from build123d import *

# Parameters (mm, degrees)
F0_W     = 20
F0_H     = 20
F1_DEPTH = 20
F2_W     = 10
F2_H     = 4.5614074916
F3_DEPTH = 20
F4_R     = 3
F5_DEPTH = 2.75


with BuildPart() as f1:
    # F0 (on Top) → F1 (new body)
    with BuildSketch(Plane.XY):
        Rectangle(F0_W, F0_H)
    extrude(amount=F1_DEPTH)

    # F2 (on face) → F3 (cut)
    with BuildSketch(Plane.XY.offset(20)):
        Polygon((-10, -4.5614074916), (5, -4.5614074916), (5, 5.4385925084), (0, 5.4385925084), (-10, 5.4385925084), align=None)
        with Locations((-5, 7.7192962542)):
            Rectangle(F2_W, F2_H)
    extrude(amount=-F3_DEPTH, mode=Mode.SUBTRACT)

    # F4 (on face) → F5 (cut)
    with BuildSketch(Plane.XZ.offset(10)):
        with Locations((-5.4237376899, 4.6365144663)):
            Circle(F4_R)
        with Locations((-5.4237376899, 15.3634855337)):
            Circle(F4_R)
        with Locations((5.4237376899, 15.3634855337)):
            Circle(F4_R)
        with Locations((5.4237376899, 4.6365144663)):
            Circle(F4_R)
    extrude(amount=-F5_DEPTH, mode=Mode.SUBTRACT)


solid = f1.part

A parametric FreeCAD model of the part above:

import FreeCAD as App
import Part
import Sketcher

V = App.Vector

doc = App.newDocument("Part")
body = doc.addObject("PartDesign::Body", "Body")

# Sketch on XY plane
sketch1 = body.newObject("Sketcher::SketchObject", "Sketch")
sketch1.AttachmentSupport = (doc.getObject("XY_Plane"), [""])
sketch1.MapMode = "FlatFace"
sketch1.addGeometry([
    Part.LineSegment(V(-10, 10, 0), V(-10, -10, 0)),
    Part.LineSegment(V(-10, -10, 0), V(10, -10, 0)),
    Part.LineSegment(V(10, -10, 0), V(10, 10, 0)),
    Part.LineSegment(V(10, 10, 0), V(-10, 10, 0)),
], False)
sketch1.addConstraint([
    Sketcher.Constraint("Coincident", 0, 2, 1, 1),
    Sketcher.Constraint("Coincident", 1, 2, 2, 1),
    Sketcher.Constraint("Coincident", 2, 2, 3, 1),
    Sketcher.Constraint("Coincident", 3, 2, 0, 1),
    Sketcher.Constraint("Vertical", 0),
    Sketcher.Constraint("Horizontal", 1),
    Sketcher.Constraint("Vertical", 2),
    Sketcher.Constraint("Horizontal", 3),
    Sketcher.Constraint("Symmetric", 0, 2, 2, 2, -1, 1),
    Sketcher.Constraint("Equal", 3, 0),
    Sketcher.Constraint("DistanceX", 1, 1, 1, 2, 20.0),
])
pad1 = body.newObject("PartDesign::Pad", "Pad")
pad1.Profile = sketch1
pad1.Length = 20

# Sketch on XY plane
sketch2 = body.newObject("Sketcher::SketchObject", "Sketch001")
sketch2.AttachmentSupport = (doc.getObject("XY_Plane"), [""])
sketch2.MapMode = "FlatFace"
sketch2.AttachmentOffset = App.Placement(V(0, 0, 20), App.Rotation())
sketch2.addGeometry([
    Part.LineSegment(V(-10, -4.561407, 0), V(5, -4.561407, 0)),  # 0
    Part.LineSegment(V(5, -4.561407, 0), V(5, 5.438593, 0)),  # 1
    Part.LineSegment(V(5, 5.438593, 0), V(0, 5.438593, 0)),  # 2
    Part.LineSegment(V(0, 5.438593, 0), V(0, 10, 0)),  # 3
    Part.LineSegment(V(0, 10, 0), V(-10, 10, 0)),  # 4
    Part.LineSegment(V(-10, 10, 0), V(-10, -4.561407, 0)),  # 5
], False)
sketch2.addConstraint([
    Sketcher.Constraint("Coincident", 0, 2, 1, 1),
    Sketcher.Constraint("Coincident", 1, 2, 2, 1),
    Sketcher.Constraint("Coincident", 2, 2, 3, 1),
    Sketcher.Constraint("Coincident", 3, 2, 4, 1),
    Sketcher.Constraint("Coincident", 4, 2, 5, 1),
    Sketcher.Constraint("Coincident", 5, 2, 0, 1),
    Sketcher.Constraint("Horizontal", 0),
    Sketcher.Constraint("Vertical", 1),
    Sketcher.Constraint("Horizontal", 2),
    Sketcher.Constraint("Vertical", 3),
    Sketcher.Constraint("Horizontal", 4),
    Sketcher.Constraint("Vertical", 5),
    Sketcher.Constraint("PointOnObject", 2, 2, -2),
    Sketcher.Constraint("Equal", 4, 1),
    Sketcher.Constraint("DistanceX", 0, 1, 0, 2, 15.0),
    Sketcher.Constraint("DistanceX", 2, 2, 2, 1, 5.0),
    Sketcher.Constraint("DistanceY", -1, 1, 3, 2, 10.0),
    Sketcher.Constraint("DistanceY", 3, 1, 3, 2, 4.561407),
])
pocket1 = body.newObject("PartDesign::Pocket", "Pocket")
pocket1.Profile = sketch2
pocket1.Length = 20

# Sketch on XZ plane
sketch3 = body.newObject("Sketcher::SketchObject", "Sketch002")
sketch3.AttachmentSupport = (doc.getObject("XZ_Plane"), [""])
sketch3.MapMode = "FlatFace"
sketch3.AttachmentOffset = App.Placement(V(0, 0, 10), App.Rotation())
sketch3.addGeometry([
    Part.Circle(V(-5.423738, 4.636514, 0), V(0, 0, 1), 3),
    Part.Circle(V(-5.423738, 15.363486, 0), V(0, 0, 1), 3),
    Part.Circle(V(5.423738, 15.363486, 0), V(0, 0, 1), 3),
    Part.Circle(V(5.423738, 4.636514, 0), V(0, 0, 1), 3),
], False)
sketch3.addConstraint([
    Sketcher.Constraint("Equal", 0, 1),
    Sketcher.Constraint("Equal", 1, 2),
    Sketcher.Constraint("Equal", 2, 3),
    Sketcher.Constraint("Symmetric", 1, 3, 2, 3, -2),
    Sketcher.Constraint("Symmetric", 0, 3, 3, 3, -2),
    Sketcher.Constraint("Vertical", 0, 3, 1, 3),
    Sketcher.Constraint("Diameter", 0, 6.0),
    Sketcher.Constraint("DistanceY", 0, 3, 1, 3, 10.726971),
    Sketcher.Constraint("DistanceX", 0, 3, -1, 1, 5.423738),
    Sketcher.Constraint("DistanceY", -1, 1, 0, 3, 4.636514),
])
pocket2 = body.newObject("PartDesign::Pocket", "Pocket001")
pocket2.Profile = sketch3
pocket2.Length = 2.75

doc.recompute()
